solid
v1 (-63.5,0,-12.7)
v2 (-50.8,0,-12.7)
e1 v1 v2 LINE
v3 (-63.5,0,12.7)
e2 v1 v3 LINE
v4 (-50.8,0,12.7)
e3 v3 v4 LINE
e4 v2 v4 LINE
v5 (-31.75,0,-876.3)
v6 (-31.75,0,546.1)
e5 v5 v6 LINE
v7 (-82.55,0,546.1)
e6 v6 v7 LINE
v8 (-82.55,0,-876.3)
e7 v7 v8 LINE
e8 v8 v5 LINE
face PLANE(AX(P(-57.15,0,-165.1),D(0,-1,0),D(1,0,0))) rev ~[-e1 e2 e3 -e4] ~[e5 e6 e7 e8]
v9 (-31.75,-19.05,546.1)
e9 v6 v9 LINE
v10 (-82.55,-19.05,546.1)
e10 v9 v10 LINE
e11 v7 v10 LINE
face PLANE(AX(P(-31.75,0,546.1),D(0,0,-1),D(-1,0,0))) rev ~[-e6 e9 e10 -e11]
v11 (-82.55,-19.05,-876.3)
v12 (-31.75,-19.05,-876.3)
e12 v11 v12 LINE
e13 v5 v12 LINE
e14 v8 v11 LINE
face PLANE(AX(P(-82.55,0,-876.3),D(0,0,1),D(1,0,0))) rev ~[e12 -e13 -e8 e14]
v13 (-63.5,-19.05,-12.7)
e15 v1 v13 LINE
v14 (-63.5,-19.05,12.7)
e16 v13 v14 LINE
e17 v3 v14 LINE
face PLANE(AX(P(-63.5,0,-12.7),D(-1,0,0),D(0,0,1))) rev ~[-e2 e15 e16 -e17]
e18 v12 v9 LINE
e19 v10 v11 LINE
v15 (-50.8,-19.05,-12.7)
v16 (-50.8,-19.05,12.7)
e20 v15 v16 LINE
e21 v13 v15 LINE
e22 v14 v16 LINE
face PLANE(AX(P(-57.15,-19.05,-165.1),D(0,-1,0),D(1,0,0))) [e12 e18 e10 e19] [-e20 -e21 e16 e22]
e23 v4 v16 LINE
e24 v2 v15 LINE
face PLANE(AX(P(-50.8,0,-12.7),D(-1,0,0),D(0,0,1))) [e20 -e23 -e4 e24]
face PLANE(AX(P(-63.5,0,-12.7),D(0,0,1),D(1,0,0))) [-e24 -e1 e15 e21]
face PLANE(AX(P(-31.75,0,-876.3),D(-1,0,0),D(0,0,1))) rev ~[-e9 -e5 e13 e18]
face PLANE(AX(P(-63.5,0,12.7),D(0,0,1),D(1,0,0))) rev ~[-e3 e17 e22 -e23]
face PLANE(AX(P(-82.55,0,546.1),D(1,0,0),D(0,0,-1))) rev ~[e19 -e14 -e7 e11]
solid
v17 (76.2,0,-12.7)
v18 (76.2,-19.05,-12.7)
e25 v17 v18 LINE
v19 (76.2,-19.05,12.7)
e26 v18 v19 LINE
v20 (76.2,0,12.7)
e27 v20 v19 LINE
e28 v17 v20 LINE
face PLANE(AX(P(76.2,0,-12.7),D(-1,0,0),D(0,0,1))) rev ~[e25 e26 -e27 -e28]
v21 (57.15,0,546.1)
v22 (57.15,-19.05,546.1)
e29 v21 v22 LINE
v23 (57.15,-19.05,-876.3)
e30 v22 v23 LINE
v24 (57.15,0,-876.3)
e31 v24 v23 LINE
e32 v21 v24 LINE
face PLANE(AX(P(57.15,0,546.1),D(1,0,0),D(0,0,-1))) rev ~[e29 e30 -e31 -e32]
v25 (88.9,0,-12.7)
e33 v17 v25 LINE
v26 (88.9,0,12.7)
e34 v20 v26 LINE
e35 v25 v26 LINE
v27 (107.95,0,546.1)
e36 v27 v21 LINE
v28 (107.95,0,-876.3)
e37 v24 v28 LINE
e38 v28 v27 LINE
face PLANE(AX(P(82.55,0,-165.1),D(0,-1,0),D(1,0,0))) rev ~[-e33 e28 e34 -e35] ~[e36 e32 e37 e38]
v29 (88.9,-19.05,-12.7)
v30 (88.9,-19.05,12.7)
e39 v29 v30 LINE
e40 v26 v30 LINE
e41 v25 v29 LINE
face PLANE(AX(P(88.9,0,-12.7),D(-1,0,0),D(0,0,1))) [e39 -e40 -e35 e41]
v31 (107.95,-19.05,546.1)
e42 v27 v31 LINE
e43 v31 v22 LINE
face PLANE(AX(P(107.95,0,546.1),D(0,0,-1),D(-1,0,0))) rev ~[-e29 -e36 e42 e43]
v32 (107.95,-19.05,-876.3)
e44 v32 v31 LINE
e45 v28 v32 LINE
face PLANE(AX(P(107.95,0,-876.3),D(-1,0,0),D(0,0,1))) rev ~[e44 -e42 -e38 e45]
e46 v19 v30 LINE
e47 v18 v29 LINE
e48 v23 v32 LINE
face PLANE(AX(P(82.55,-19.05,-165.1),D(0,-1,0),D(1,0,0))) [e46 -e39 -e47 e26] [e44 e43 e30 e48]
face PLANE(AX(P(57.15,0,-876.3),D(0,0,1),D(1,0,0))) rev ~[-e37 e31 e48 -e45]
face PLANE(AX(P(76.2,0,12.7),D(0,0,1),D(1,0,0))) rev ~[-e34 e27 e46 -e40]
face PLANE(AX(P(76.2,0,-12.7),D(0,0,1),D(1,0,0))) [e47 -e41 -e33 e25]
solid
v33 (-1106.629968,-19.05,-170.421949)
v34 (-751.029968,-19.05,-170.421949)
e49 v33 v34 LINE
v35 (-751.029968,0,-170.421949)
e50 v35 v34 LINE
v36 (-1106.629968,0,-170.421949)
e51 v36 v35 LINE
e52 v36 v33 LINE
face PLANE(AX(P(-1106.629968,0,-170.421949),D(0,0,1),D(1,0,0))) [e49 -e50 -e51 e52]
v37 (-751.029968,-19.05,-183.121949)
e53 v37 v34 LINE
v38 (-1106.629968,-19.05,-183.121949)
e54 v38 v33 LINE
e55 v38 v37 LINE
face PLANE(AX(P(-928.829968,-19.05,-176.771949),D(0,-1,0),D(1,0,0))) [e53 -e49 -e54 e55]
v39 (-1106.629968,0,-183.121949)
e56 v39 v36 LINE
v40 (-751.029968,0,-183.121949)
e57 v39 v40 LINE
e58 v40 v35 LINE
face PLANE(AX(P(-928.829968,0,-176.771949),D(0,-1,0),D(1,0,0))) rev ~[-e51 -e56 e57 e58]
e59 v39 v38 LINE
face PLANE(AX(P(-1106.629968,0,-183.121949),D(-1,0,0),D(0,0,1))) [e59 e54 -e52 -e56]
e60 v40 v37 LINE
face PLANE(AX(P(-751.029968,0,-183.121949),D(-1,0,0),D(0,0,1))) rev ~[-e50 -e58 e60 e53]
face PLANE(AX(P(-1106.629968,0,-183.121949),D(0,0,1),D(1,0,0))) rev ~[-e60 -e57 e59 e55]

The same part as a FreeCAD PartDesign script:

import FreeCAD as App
import Part
import Sketcher
from FreeCAD import Vector
Q = App.Units.Quantity


def add_polygon(sketch, points):
    """Adds a closed chain of lines whose ends are joined by coincident constraints."""
    first, n = sketch.GeometryCount, len(points)
    for a, b in zip(points, points[1:] + points[:1]):
        sketch.addGeometry(Part.LineSegment(App.Vector(*a, 0), App.Vector(*b, 0)), False)
    for i in range(n):
        sketch.addConstraint(Sketcher.Constraint("Coincident", first + i, 2, first + (i + 1) % n, 1))

doc = App.newDocument("Part")
body = doc.addObject("PartDesign::Body", "Body")
body.AllowCompound = True

sketch1 = doc.addObject("Sketcher::SketchObject", "Sketch")
body.addObject(sketch1)
sketch1.AttachmentSupport = (doc.XZ_Plane, [""])
sketch1.MapMode = "FlatFace"
add_polygon(sketch1, [(57, 546), (57, -876), (108, -876), (108, 546)])
add_polygon(sketch1, [(89, -13), (76, -13), (76, 13), (89, 13)])
add_polygon(sketch1, [(-32, 546), (-83, 546), (-83, -876), (-32, -876)])
add_polygon(sketch1, [(-51, -13), (-64, -13), (-64, 13), (-51, 13)])
add_polygon(sketch1, [(-1107, -170), (-1107, -183), (-751, -183), (-751, -170)])
sketch1.addConstraint([
    Sketcher.Constraint("Vertical", 0),
    Sketcher.Constraint("Horizontal", 1),
    Sketcher.Constraint("Vertical", 2),
    Sketcher.Constraint("Horizontal", 3),
    Sketcher.Constraint("Horizontal", 4),
    Sketcher.Constraint("Vertical", 5),
    Sketcher.Constraint("Horizontal", 6),
    Sketcher.Constraint("Vertical", 7),
    Sketcher.Constraint("Horizontal", 8),
    Sketcher.Constraint("Vertical", 9),
    Sketcher.Constraint("Horizontal", 10),
    Sketcher.Constraint("Vertical", 11),
    Sketcher.Constraint("Horizontal", 12),
    Sketcher.Constraint("Vertical", 13),
    Sketcher.Constraint("Horizontal", 14),
    Sketcher.Constraint("Vertical", 15),
    Sketcher.Constraint("Vertical", 16),
    Sketcher.Constraint("Horizontal", 17),
    Sketcher.Constraint("Vertical", 18),
    Sketcher.Constraint("Horizontal", 19),
    Sketcher.Constraint("Horizontal", 3, 2, 8, 2),
    Sketcher.Constraint("Horizontal", 1, 2, 9, 2),
    Sketcher.Constraint("Horizontal", 7, 2, 12, 2),
    Sketcher.Constraint("Horizontal", 6, 2, 13, 2),
    Sketcher.Constraint("Equal", 3, 8),
    Sketcher.Constraint("Equal", 6, 12),
    Sketcher.Constraint("Equal", 14, 16),
    Sketcher.Constraint("DistanceX", 1, 1, 1, 2, Q("2 in")),
    Sketcher.Constraint("DistanceX", 17, 1, 17, 2, Q("14 in")),
    Sketcher.Constraint("DistanceY", 0, 2, 0, 1, Q("56 in")),
    Sketcher.Constraint("DistanceY", 5, 1, 5, 2, Q("1 in")),
    Sketcher.Constraint("DistanceX", 4, 2, 4, 1, Q("0.5 in")),
    Sketcher.Constraint("DistanceX", -1, 1, 4, 2, Q("3 in")),
    Sketcher.Constraint("DistanceX", 14, 2, -1, 1, Q("2 in")),
    Sketcher.Constraint("DistanceY", 4, 2, 3, 2, Q("22 in")),
    Sketcher.Constraint("DistanceY", 0, 2, -1, 1, Q("34.5 in")),
    Sketcher.Constraint("DistanceX", 8, 2, 3, 2, Q("5.5 in")),
    Sketcher.Constraint("DistanceX", -1, 1, 0, 2, Q("2.25 in")),
    Sketcher.Constraint("DistanceX", 16, 2, -1, 1, 1106.629968),
    Sketcher.Constraint("DistanceY", 16, 2, -1, 1, 183.121949),
])
pad1 = doc.addObject("PartDesign::Pad", "Pad")
body.addObject(pad1)
pad1.Profile = sketch1
pad1.Length = Q("0.75 in")

doc.recompute()
